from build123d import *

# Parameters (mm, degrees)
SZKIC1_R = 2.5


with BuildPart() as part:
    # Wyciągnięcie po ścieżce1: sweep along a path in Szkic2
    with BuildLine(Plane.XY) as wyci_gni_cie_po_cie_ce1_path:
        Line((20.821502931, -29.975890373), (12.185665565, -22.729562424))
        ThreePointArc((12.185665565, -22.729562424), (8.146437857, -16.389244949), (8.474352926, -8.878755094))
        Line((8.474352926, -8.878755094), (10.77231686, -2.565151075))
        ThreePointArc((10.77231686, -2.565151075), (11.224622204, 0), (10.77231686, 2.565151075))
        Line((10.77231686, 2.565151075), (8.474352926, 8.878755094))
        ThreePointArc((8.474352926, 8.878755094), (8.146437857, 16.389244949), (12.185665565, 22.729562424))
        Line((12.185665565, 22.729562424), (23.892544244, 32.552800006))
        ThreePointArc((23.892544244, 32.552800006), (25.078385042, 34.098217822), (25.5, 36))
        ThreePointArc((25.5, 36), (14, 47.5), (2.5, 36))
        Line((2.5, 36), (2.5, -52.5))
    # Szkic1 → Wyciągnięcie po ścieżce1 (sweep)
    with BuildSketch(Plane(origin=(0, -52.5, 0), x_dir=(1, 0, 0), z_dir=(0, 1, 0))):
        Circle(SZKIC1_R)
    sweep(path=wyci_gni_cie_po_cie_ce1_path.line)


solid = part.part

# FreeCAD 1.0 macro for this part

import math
import FreeCAD as App
import Part
import Sketcher
from FreeCAD import Vector
Q = App.Units.Quantity

doc = App.newDocument("Part")
body = doc.addObject("PartDesign::Body", "Body")

sketch1 = doc.addObject("Sketcher::SketchObject", "Sketch")
body.addObject(sketch1)
sketch1.AttachmentSupport = (doc.XZ_Plane, [""])
sketch1.MapMode = "FlatFace"
sketch1.AttachmentOffset = App.Placement(Vector(0, 0, 52.5), App.Rotation())
sketch1.addGeometry(Part.Circle(Vector(0, 0, 0), Vector(0, 0, 1), 2.5), False)
sketch1.addConstraint(Sketcher.Constraint("Coincident", 0, 3, -1, 1))
sketch1.addConstraint(Sketcher.Constraint("Diameter", 0, Q("5 mm")))

sketch2 = doc.addObject("Sketcher::SketchObject", "Sketch001")
body.addObject(sketch2)
sketch2.AttachmentSupport = (doc.XY_Plane, [""])
sketch2.MapMode = "FlatFace"
sketch2.addGeometry(Part.LineSegment(Vector(20.8, -30, 0), Vector(12.2, -22.7, 0)), False)
sketch2.addGeometry(Part.ArcOfCircle(Part.Circle(Vector(20.2, -13.2, 0), Vector(0, 0, 1), 12.5), math.radians(160), math.radians(230)), False)
sketch2.addGeometry(Part.LineSegment(Vector(8.5, -8.9, 0), Vector(10.8, -2.6, 0)), False)
sketch2.addGeometry(Part.ArcOfCircle(Part.Circle(Vector(3.7, 0, 0), Vector(0, 0, 1), 7.5), math.radians(-20), math.radians(20)), False)
sketch2.addGeometry(Part.LineSegment(Vector(10.8, 2.6, 0), Vector(8.5, 8.9, 0)), False)
sketch2.addGeometry(Part.ArcOfCircle(Part.Circle(Vector(20.2, 13.2, 0), Vector(0, 0, 1), 12.5), math.radians(130), math.radians(200)), False)
sketch2.addGeometry(Part.LineSegment(Vector(12.2, 22.7, 0), Vector(23.9, 32.6, 0)), False)
sketch2.addGeometry(Part.ArcOfCircle(Part.Circle(Vector(21, 36, 0), Vector(0, 0, 1), 4.5), math.radians(-50), math.radians(0)), False)
sketch2.addGeometry(Part.ArcOfCircle(Part.Circle(Vector(14, 36, 0), Vector(0, 0, 1), 11.5), math.radians(0), math.radians(180)), False)
sketch2.addGeometry(Part.LineSegment(Vector(2.5, 36, 0), Vector(2.5, -52.5, 0)), False)
sketch2.addConstraint(Sketcher.Constraint("Tangent", 0, 2, 1, 2))
sketch2.addConstraint(Sketcher.Constraint("Tangent", 1, 1, 2, 1))
sketch2.addConstraint(Sketcher.Constraint("Tangent", 2, 2, 3, 1))
sketch2.addConstraint(Sketcher.Constraint("Tangent", 3, 2, 4, 1))
sketch2.addConstraint(Sketcher.Constraint("Tangent", 4, 2, 5, 2))
sketch2.addConstraint(Sketcher.Constraint("Tangent", 5, 1, 6, 1))
sketch2.addConstraint(Sketcher.Constraint("Tangent", 6, 2, 7, 1))
sketch2.addConstraint(Sketcher.Constraint("Tangent", 7, 2, 8, 1))
sketch2.addConstraint(Sketcher.Constraint("Tangent", 8, 2, 9, 1))
sketch2.addConstraint(Sketcher.Constraint("Vertical", 9))
sketch2.addConstraint(Sketcher.Constraint("Equal", 1, 5))
sketch2.addConstraint(Sketcher.Constraint("Symmetric", 1, 3, 5, 3, -1))
sketch2.addConstraint(Sketcher.Constraint("PointOnObject", 3, 3, -1))
sketch2.addConstraint(Sketcher.Constraint("Horizontal", 7, 3, 8, 3))
sketch2.addConstraint(Sketcher.Constraint("Vertical", 0, 2, 5, 1))
sketch2.addConstraint(Sketcher.Constraint("Radius", 1, Q("12.5 mm")))
sketch2.addConstraint(Sketcher.Constraint("Radius", 3, Q("7.5 mm")))
sketch2.addConstraint(Sketcher.Constraint("Radius", 7, Q("4.5 mm")))
sketch2.addConstraint(Sketcher.Constraint("Radius", 8, Q("11.5 mm")))
sketch2.addConstraint(Sketcher.Constraint("Angle", 0, Q("140 deg")))
sketch2.addConstraint(Sketcher.Constraint("Angle", 2, Q("70 deg")))
sketch2.addConstraint(Sketcher.Constraint("DistanceY", 9, 2, 9, 1, Q("88.5 mm")))
sketch2.addConstraint(Sketcher.Constraint("DistanceX", -1, 1, 7, 3, Q("21 mm")))
sketch2.addConstraint(Sketcher.Constraint("DistanceY", -1, 1, 7, 3, Q("36 mm")))
sketch2.addConstraint(Sketcher.Constraint("DistanceX", -1, 1, 1, 3, Q("20.220511 mm")))
sketch2.addConstraint(Sketcher.Constraint("DistanceY", 0, 1, -1, 1, Q("29.97589 mm")))
doc.recompute()

additivepipe = doc.addObject("PartDesign::AdditivePipe", "AdditivePipe")
body.addObject(additivepipe)
additivepipe.Profile = sketch1
additivepipe.Spine = (sketch2, ["Edge1", "Edge2", "Edge3", "Edge4", "Edge5", "Edge6", "Edge7", "Edge8", "Edge9", "Edge10"])

doc.recompute()
